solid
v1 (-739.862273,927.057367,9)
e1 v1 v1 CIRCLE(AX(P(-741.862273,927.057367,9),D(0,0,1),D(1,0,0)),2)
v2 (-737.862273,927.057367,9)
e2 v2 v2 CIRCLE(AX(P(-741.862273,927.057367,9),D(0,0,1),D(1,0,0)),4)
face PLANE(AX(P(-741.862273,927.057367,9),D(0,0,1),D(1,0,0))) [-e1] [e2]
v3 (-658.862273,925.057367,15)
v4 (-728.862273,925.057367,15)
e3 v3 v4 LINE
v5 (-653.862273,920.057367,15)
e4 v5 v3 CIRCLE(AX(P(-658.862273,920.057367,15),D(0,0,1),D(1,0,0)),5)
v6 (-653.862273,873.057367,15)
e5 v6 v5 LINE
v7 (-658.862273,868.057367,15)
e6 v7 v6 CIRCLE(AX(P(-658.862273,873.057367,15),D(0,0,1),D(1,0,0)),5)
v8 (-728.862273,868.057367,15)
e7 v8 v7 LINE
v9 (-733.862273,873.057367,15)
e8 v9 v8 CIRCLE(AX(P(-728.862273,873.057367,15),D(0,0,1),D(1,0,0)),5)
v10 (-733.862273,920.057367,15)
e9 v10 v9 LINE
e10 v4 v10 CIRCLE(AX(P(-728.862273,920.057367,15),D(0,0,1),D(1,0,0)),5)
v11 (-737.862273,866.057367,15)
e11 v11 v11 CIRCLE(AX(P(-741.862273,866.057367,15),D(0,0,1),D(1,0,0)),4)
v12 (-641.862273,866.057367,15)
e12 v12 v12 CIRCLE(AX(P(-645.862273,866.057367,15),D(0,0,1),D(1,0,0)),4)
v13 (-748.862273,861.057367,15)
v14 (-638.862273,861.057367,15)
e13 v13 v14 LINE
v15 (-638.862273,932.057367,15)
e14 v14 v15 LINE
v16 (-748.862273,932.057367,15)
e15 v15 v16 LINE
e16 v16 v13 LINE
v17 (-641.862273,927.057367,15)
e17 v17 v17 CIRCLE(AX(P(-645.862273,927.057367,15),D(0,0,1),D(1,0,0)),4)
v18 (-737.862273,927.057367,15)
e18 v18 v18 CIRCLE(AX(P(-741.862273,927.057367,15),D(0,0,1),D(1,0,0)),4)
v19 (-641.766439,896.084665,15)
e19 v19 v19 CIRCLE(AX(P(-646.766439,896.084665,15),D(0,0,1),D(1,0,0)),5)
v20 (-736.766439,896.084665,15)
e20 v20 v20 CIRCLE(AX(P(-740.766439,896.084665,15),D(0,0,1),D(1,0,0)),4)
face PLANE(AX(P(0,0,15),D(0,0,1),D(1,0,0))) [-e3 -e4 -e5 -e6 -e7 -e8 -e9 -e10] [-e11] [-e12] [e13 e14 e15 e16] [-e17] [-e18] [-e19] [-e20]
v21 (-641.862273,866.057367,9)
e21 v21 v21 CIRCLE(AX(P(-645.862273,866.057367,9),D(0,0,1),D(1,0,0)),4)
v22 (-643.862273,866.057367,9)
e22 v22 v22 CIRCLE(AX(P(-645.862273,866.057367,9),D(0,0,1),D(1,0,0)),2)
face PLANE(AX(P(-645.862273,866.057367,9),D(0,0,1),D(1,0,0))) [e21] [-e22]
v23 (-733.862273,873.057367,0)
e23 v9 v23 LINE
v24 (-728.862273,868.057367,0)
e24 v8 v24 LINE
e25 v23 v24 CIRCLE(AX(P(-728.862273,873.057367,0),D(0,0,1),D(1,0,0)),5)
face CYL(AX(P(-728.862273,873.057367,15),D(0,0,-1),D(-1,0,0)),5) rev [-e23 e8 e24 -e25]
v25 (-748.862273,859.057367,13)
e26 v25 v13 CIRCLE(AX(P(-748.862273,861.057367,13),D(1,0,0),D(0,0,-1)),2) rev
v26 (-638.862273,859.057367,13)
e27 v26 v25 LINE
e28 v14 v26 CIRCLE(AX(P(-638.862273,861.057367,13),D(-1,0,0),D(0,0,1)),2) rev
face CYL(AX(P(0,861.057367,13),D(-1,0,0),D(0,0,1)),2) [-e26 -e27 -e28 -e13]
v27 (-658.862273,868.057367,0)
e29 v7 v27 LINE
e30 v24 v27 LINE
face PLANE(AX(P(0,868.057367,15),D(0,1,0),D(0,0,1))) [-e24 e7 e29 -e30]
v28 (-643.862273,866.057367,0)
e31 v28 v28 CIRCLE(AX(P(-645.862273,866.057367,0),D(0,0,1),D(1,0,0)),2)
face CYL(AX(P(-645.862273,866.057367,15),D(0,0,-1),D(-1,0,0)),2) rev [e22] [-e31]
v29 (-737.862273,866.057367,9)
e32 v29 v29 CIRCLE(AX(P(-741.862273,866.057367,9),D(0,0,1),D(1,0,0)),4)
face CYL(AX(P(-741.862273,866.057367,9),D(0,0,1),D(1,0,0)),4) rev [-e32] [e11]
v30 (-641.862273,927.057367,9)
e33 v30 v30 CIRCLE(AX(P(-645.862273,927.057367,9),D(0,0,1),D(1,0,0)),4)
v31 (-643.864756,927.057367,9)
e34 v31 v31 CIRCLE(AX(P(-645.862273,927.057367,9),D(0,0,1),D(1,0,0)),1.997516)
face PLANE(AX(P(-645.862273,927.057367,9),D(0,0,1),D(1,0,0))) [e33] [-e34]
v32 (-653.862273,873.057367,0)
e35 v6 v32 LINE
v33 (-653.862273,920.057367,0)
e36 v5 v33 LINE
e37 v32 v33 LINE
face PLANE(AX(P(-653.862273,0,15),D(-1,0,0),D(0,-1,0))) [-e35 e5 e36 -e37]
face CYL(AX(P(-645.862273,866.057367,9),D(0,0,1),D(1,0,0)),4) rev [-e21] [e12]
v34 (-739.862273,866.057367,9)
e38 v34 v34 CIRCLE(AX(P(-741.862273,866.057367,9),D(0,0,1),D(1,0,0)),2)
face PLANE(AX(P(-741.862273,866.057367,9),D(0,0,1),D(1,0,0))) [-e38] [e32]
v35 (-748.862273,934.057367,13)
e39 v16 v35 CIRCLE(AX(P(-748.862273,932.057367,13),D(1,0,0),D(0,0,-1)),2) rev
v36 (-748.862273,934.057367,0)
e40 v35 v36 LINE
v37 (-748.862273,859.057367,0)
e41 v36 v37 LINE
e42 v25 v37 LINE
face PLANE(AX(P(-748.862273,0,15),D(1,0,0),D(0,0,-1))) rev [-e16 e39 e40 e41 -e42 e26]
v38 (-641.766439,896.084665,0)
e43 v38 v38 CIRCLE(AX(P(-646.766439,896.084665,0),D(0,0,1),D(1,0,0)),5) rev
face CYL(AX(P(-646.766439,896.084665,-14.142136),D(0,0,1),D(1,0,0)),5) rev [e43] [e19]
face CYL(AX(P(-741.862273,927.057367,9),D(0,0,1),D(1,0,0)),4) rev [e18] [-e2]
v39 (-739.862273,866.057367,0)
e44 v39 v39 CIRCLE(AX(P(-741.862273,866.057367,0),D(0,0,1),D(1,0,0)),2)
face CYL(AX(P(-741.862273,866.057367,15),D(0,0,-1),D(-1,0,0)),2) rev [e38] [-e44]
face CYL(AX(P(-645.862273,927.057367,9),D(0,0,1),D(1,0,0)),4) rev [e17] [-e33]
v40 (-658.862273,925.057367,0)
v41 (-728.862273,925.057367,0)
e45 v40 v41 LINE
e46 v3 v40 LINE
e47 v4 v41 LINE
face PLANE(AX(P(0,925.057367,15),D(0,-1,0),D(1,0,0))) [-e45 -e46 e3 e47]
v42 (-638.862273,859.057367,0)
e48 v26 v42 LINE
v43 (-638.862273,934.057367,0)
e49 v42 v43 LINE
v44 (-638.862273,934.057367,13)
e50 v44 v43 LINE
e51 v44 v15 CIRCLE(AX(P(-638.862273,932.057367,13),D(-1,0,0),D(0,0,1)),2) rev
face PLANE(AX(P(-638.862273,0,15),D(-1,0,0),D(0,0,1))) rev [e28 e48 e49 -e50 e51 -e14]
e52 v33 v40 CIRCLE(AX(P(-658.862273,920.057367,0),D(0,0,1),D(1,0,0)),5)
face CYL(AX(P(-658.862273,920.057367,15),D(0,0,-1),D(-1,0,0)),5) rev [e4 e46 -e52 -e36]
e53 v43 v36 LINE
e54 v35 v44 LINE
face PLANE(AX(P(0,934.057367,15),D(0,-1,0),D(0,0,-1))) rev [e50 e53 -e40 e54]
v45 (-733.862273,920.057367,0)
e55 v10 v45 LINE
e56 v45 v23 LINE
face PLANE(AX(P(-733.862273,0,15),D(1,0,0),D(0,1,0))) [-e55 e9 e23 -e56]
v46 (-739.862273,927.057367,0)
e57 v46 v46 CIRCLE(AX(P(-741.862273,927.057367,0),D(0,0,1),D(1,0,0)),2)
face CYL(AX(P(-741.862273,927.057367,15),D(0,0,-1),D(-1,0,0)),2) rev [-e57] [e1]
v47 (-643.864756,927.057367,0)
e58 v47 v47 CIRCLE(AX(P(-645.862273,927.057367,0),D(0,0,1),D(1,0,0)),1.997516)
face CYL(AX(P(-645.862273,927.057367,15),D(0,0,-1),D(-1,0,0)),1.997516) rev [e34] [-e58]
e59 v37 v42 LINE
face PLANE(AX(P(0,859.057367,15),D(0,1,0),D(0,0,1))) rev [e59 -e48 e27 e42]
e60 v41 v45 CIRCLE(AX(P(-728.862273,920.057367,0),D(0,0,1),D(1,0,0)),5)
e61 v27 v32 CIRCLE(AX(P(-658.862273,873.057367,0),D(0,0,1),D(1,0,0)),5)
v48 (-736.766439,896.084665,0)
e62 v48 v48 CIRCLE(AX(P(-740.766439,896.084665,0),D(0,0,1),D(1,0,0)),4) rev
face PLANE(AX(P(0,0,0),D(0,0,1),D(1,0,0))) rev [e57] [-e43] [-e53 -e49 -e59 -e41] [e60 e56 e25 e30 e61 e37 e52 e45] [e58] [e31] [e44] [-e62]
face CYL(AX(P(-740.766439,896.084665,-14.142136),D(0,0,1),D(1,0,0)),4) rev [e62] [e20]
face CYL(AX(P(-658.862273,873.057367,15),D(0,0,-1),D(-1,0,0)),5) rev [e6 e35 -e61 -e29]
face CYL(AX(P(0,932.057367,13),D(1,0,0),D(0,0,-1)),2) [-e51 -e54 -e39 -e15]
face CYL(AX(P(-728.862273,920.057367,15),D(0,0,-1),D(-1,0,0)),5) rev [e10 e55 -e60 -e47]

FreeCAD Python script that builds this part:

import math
import FreeCAD as App
import Part
import Sketcher
from FreeCAD import Vector


def edges_at(feature, points):
    """Names of the edges that pass closest to the given points."""
    edges = feature.Shape.Edges
    near = lambda p: min(range(len(edges)), key=lambda i: edges[i].distToShape(Part.Vertex(*p))[0])
    return sorted({f"Edge{near(p) + 1}" for p in points})


def add_polygon(sketch, points):
    """Adds a closed chain of lines whose ends are joined by coincident constraints."""
    first, n = sketch.GeometryCount, len(points)
    for a, b in zip(points, points[1:] + points[:1]):
        sketch.addGeometry(Part.LineSegment(App.Vector(*a, 0), App.Vector(*b, 0)), False)
    for i in range(n):
        sketch.addConstraint(Sketcher.Constraint("Coincident", first + i, 2, first + (i + 1) % n, 1))

doc = App.newDocument("Part")
body = doc.addObject("PartDesign::Body", "Body")

sketch1 = doc.addObject("Sketcher::SketchObject", "Sketch")
body.addObject(sketch1)
sketch1.AttachmentSupport = (doc.XY_Plane, [""])
sketch1.MapMode = "FlatFace"
add_polygon(sketch1, [(-748.9, 934.1), (-748.9, 859.1), (-638.9, 859.1), (-638.9, 934.1)])
sketch1.addGeometry(Part.Circle(Vector(-741.9, 866.1, 0), Vector(0, 0, 1), 2), False)
sketch1.addGeometry(Part.Circle(Vector(-645.9, 866.1, 0), Vector(0, 0, 1), 2), False)
sketch1.addGeometry(Part.ArcOfCircle(Part.Circle(Vector(-728.9, 920.1, 0), Vector(0, 0, 1), 5), math.radians(90), math.radians(180)), False)
sketch1.addGeometry(Part.LineSegment(Vector(-728.9, 925.1, 0), Vector(-658.9, 925.1, 0)), False)
sketch1.addGeometry(Part.ArcOfCircle(Part.Circle(Vector(-658.9, 920.1, 0), Vector(0, 0, 1), 5), math.radians(0), math.radians(90)), False)
sketch1.addGeometry(Part.LineSegment(Vector(-653.9, 920.1, 0), Vector(-653.9, 873.1, 0)), False)
sketch1.addGeometry(Part.ArcOfCircle(Part.Circle(Vector(-658.9, 873.1, 0), Vector(0, 0, 1), 5), math.radians(-90), math.radians(0)), False)
sketch1.addGeometry(Part.LineSegment(Vector(-658.9, 868.1, 0), Vector(-728.9, 868.1, 0)), False)
sketch1.addGeometry(Part.ArcOfCircle(Part.Circle(Vector(-728.9, 873.1, 0), Vector(0, 0, 1), 5), math.radians(180), math.radians(270)), False)
sketch1.addGeometry(Part.LineSegment(Vector(-733.9, 873.1, 0), Vector(-733.9, 920.1, 0)), False)
sketch1.addGeometry(Part.Circle(Vector(-741.9, 927.1, 0), Vector(0, 0, 1), 2), False)
sketch1.addGeometry(Part.Circle(Vector(-645.9, 927.1, 0), Vector(0, 0, 1), 2), False)
sketch1.addConstraint(Sketcher.Constraint("Tangent", 6, 1, 7, 1))
sketch1.addConstraint(Sketcher.Constraint("Tangent", 7, 2, 8, 2))
sketch1.addConstraint(Sketcher.Constraint("Tangent", 8, 1, 9, 1))
sketch1.addConstraint(Sketcher.Constraint("Tangent", 9, 2, 10, 2))
sketch1.addConstraint(Sketcher.Constraint("Tangent", 10, 1, 11, 1))
sketch1.addConstraint(Sketcher.Constraint("Tangent", 11, 2, 12, 2))
sketch1.addConstraint(Sketcher.Constraint("Tangent", 12, 1, 13, 1))
sketch1.addConstraint(Sketcher.Constraint("Tangent", 13, 2, 6, 2))
sketch1.addConstraint(Sketcher.Constraint("Vertical", 0))
sketch1.addConstraint(Sketcher.Constraint("Horizontal", 1))
sketch1.addConstraint(Sketcher.Constraint("Vertical", 2))
sketch1.addConstraint(Sketcher.Constraint("Horizontal", 3))
sketch1.addConstraint(Sketcher.Constraint("Horizontal", 7))
sketch1.addConstraint(Sketcher.Constraint("Vertical", 9))
sketch1.addConstraint(Sketcher.Constraint("Horizontal", 11))
sketch1.addConstraint(Sketcher.Constraint("Vertical", 13))
sketch1.addConstraint(Sketcher.Constraint("Equal", 4, 5))
sketch1.addConstraint(Sketcher.Constraint("Equal", 6, 8))
sketch1.addConstraint(Sketcher.Constraint("Equal", 8, 10))
sketch1.addConstraint(Sketcher.Constraint("Equal", 10, 12))
sketch1.addConstraint(Sketcher.Constraint("Equal", 5, 14))
sketch1.addConstraint(Sketcher.Constraint("Horizontal", 4, 3, 5, 3))
sketch1.addConstraint(Sketcher.Constraint("Horizontal", 14, 3, 15, 3))
sketch1.addConstraint(Sketcher.Constraint("Vertical", 4, 3, 14, 3))
sketch1.addConstraint(Sketcher.Constraint("Vertical", 5, 3, 15, 3))
sketch1.addConstraint(Sketcher.Constraint("Diameter", 4, 4.0))
sketch1.addConstraint(Sketcher.Constraint("Radius", 6, 5.0))
sketch1.addConstraint(Sketcher.Constraint("DistanceX", 1, 1, 1, 2, 110.0))
sketch1.addConstraint(Sketcher.Constraint("DistanceX", 7, 1, 7, 2, 70.0))
sketch1.addConstraint(Sketcher.Constraint("DistanceY", 0, 2, 0, 1, 75.0))
sketch1.addConstraint(Sketcher.Constraint("DistanceY", 9, 2, 9, 1, 47.0))
sketch1.addConstraint(Sketcher.Constraint("DistanceX", 4, 3, 5, 3, 96.0))
sketch1.addConstraint(Sketcher.Constraint("DistanceX", 4, 3, 6, 3, 13.0))
sketch1.addConstraint(Sketcher.Constraint("DistanceY", 4, 3, 6, 3, 54.0))
sketch1.addConstraint(Sketcher.Constraint("DistanceY", 6, 3, 14, 3, 7.0))
sketch1.addConstraint(Sketcher.Constraint("DistanceX", 0, 2, 4, 3, 7.0))
sketch1.addConstraint(Sketcher.Constraint("DistanceY", 0, 2, 4, 3, 7.0))
sketch1.addConstraint(Sketcher.Constraint("Diameter", 15, 3.995032))
sketch1.addConstraint(Sketcher.Constraint("DistanceX", 4, 3, -1, 1, 741.862273))
sketch1.addConstraint(Sketcher.Constraint("DistanceY", -1, 1, 4, 3, 866.057367))
pad1 = doc.addObject("PartDesign::Pad", "Pad")
body.addObject(pad1)
pad1.Profile = sketch1
pad1.Length = 15

sketch2 = doc.addObject("Sketcher::SketchObject", "Sketch001")
body.addObject(sketch2)
sketch2.AttachmentSupport = (doc.XY_Plane, [""])
sketch2.MapMode = "FlatFace"
sketch2.AttachmentOffset = App.Placement(Vector(0, 0, 15), App.Rotation())
sketch2.addGeometry(Part.Circle(Vector(-645.9, 927.1, 0), Vector(0, 0, 1), 4), False)
sketch2.addGeometry(Part.Circle(Vector(-645.9, 866.1, 0), Vector(0, 0, 1), 4), False)
sketch2.addGeometry(Part.Circle(Vector(-741.9, 866.1, 0), Vector(0, 0, 1), 4), False)
sketch2.addGeometry(Part.Circle(Vector(-741.9, 927.1, 0), Vector(0, 0, 1), 4), False)
sketch2.addConstraint(Sketcher.Constraint("Equal", 0, 1))
sketch2.addConstraint(Sketcher.Constraint("Equal", 1, 2))
sketch2.addConstraint(Sketcher.Constraint("Equal", 2, 3))
sketch2.addConstraint(Sketcher.Constraint("Horizontal", 1, 3, 2, 3))
sketch2.addConstraint(Sketcher.Constraint("Horizontal", 0, 3, 3, 3))
sketch2.addConstraint(Sketcher.Constraint("Vertical", 0, 3, 1, 3))
sketch2.addConstraint(Sketcher.Constraint("Vertical", 2, 3, 3, 3))
sketch2.addConstraint(Sketcher.Constraint("Diameter", 0, 8.0))
sketch2.addConstraint(Sketcher.Constraint("DistanceY", 1, 3, 0, 3, 61.0))
sketch2.addConstraint(Sketcher.Constraint("DistanceX", 2, 3, 1, 3, 96.0))
sketch2.addConstraint(Sketcher.Constraint("DistanceX", 0, 3, -1, 1, 645.862273))
sketch2.addConstraint(Sketcher.Constraint("DistanceY", -1, 1, 0, 3, 927.057367))
pocket1 = doc.addObject("PartDesign::Pocket", "Pocket")
body.addObject(pocket1)
pocket1.Profile = sketch2
pocket1.Length = 6
doc.recompute()

fillet = doc.addObject("PartDesign::Fillet", "Fillet")
body.addObject(fillet)
fillet.Base = (pocket1, edges_at(pocket1, [(-693.862, 859.057, 15), (-693.862, 934.057, 15)]))
fillet.Radius = 2

sketch3 = doc.addObject("Sketcher::SketchObject", "Sketch002")
body.addObject(sketch3)
sketch3.AttachmentSupport = (doc.XY_Plane, [""])
sketch3.MapMode = "FlatFace"
sketch3.AttachmentOffset = App.Placement(Vector(0, 0, 15), App.Rotation())
sketch3.addGeometry(Part.Circle(Vector(-736.9, 896.6, 0), Vector(0, 0, 1), 3.5), False)
sketch3.addGeometry(Part.Circle(Vector(-642.9, 896.6, 0), Vector(0, 0, 1), 3), False)
sketch3.addConstraint(Sketcher.Constraint("Horizontal", 0, 3, 1, 3))
sketch3.addConstraint(Sketcher.Constraint("Diameter", 0, 7.0))
sketch3.addConstraint(Sketcher.Constraint("Diameter", 1, 6.0))
sketch3.addConstraint(Sketcher.Constraint("DistanceX", 0, 3, 1, 3, 94.0))
sketch3.addConstraint(Sketcher.Constraint("DistanceX", 0, 3, -1, 1, 736.862273))
sketch3.addConstraint(Sketcher.Constraint("DistanceY", -1, 1, 0, 3, 896.557367))
pocket2 = doc.addObject("PartDesign::Pocket", "Pocket001")
body.addObject(pocket2)
pocket2.Profile = sketch3
pocket2.Length = 15

sketch4 = doc.addObject("Sketcher::SketchObject", "Sketch003")
body.addObject(sketch4)
sketch4.AttachmentSupport = (doc.XY_Plane, [""])
sketch4.MapMode = "FlatFace"
sketch4.AttachmentOffset = App.Placement(Vector(0, 0, 15), App.Rotation())
sketch4.addGeometry(Part.Circle(Vector(-642.9, 896.6, 0), Vector(0, 0, 1), 3.7), False)
sketch4.addGeometry(Part.LineSegment(Vector(-733.9, 893.8, 0), Vector(-733.9, 899.3, 0)), False)
sketch4.addGeometry(Part.ArcOfCircle(Part.Circle(Vector(-736.9, 896.6, 0), Vector(0, 0, 1), 4.1), math.radians(43), math.radians(317)), False)
sketch4.addConstraint(Sketcher.Constraint("Coincident", 1, 1, 2, 2))
sketch4.addConstraint(Sketcher.Constraint("Coincident", 2, 1, 1, 2))
sketch4.addConstraint(Sketcher.Constraint("Vertical", 1))
sketch4.addConstraint(Sketcher.Constraint("Horizontal", 0, 3, 2, 3))
sketch4.addConstraint(Sketcher.Constraint("DistanceX", 2, 3, 0, 3, 94.0))
sketch4.addConstraint(Sketcher.Constraint("DistanceX", 2, 3, 1, 1, 3.0))
sketch4.addConstraint(Sketcher.Constraint("Diameter", 0, 7.402949))
sketch4.addConstraint(Sketcher.Constraint("Radius", 2, 4.081972))
sketch4.addConstraint(Sketcher.Constraint("DistanceY", -1, 1, 2, 1, 899.325488))
sketch4.addConstraint(Sketcher.Constraint("DistanceX", 0, 3, -1, 1, 642.862273))
pad2 = doc.addObject("PartDesign::Pad", "Pad001")
body.addObject(pad2)
pad2.Profile = sketch4
pad2.Length = 15
pad2.Reversed = True

sketch5 = doc.addObject("Sketcher::SketchObject", "Sketch004")
body.addObject(sketch5)
sketch5.AttachmentSupport = (doc.XY_Plane, [""])
sketch5.MapMode = "FlatFace"
sketch5.AttachmentOffset = App.Placement(Vector(0, 0, 15), App.Rotation())
sketch5.addGeometry(Part.Circle(Vector(-740.8, 896.1, 0), Vector(0, 0, 1), 4), False)
sketch5.addGeometry(Part.Circle(Vector(-646.8, 896.1, 0), Vector(0, 0, 1), 5), False)
sketch5.addConstraint(Sketcher.Constraint("Horizontal", 0, 3, 1, 3))
sketch5.addConstraint(Sketcher.Constraint("Diameter", 0, 8.0))
sketch5.addConstraint(Sketcher.Constraint("Diameter", 1, 10.0))
sketch5.addConstraint(Sketcher.Constraint("DistanceX", 0, 3, 1, 3, 94.0))
sketch5.addConstraint(Sketcher.Constraint("DistanceX", 0, 3, -1, 1, 740.766439))
sketch5.addConstraint(Sketcher.Constraint("DistanceY", -1, 1, 0, 3, 896.084665))
pocket3 = doc.addObject("PartDesign::Pocket", "Pocket002")
body.addObject(pocket3)
pocket3.Profile = sketch5
pocket3.Length = 15

doc.recompute()
